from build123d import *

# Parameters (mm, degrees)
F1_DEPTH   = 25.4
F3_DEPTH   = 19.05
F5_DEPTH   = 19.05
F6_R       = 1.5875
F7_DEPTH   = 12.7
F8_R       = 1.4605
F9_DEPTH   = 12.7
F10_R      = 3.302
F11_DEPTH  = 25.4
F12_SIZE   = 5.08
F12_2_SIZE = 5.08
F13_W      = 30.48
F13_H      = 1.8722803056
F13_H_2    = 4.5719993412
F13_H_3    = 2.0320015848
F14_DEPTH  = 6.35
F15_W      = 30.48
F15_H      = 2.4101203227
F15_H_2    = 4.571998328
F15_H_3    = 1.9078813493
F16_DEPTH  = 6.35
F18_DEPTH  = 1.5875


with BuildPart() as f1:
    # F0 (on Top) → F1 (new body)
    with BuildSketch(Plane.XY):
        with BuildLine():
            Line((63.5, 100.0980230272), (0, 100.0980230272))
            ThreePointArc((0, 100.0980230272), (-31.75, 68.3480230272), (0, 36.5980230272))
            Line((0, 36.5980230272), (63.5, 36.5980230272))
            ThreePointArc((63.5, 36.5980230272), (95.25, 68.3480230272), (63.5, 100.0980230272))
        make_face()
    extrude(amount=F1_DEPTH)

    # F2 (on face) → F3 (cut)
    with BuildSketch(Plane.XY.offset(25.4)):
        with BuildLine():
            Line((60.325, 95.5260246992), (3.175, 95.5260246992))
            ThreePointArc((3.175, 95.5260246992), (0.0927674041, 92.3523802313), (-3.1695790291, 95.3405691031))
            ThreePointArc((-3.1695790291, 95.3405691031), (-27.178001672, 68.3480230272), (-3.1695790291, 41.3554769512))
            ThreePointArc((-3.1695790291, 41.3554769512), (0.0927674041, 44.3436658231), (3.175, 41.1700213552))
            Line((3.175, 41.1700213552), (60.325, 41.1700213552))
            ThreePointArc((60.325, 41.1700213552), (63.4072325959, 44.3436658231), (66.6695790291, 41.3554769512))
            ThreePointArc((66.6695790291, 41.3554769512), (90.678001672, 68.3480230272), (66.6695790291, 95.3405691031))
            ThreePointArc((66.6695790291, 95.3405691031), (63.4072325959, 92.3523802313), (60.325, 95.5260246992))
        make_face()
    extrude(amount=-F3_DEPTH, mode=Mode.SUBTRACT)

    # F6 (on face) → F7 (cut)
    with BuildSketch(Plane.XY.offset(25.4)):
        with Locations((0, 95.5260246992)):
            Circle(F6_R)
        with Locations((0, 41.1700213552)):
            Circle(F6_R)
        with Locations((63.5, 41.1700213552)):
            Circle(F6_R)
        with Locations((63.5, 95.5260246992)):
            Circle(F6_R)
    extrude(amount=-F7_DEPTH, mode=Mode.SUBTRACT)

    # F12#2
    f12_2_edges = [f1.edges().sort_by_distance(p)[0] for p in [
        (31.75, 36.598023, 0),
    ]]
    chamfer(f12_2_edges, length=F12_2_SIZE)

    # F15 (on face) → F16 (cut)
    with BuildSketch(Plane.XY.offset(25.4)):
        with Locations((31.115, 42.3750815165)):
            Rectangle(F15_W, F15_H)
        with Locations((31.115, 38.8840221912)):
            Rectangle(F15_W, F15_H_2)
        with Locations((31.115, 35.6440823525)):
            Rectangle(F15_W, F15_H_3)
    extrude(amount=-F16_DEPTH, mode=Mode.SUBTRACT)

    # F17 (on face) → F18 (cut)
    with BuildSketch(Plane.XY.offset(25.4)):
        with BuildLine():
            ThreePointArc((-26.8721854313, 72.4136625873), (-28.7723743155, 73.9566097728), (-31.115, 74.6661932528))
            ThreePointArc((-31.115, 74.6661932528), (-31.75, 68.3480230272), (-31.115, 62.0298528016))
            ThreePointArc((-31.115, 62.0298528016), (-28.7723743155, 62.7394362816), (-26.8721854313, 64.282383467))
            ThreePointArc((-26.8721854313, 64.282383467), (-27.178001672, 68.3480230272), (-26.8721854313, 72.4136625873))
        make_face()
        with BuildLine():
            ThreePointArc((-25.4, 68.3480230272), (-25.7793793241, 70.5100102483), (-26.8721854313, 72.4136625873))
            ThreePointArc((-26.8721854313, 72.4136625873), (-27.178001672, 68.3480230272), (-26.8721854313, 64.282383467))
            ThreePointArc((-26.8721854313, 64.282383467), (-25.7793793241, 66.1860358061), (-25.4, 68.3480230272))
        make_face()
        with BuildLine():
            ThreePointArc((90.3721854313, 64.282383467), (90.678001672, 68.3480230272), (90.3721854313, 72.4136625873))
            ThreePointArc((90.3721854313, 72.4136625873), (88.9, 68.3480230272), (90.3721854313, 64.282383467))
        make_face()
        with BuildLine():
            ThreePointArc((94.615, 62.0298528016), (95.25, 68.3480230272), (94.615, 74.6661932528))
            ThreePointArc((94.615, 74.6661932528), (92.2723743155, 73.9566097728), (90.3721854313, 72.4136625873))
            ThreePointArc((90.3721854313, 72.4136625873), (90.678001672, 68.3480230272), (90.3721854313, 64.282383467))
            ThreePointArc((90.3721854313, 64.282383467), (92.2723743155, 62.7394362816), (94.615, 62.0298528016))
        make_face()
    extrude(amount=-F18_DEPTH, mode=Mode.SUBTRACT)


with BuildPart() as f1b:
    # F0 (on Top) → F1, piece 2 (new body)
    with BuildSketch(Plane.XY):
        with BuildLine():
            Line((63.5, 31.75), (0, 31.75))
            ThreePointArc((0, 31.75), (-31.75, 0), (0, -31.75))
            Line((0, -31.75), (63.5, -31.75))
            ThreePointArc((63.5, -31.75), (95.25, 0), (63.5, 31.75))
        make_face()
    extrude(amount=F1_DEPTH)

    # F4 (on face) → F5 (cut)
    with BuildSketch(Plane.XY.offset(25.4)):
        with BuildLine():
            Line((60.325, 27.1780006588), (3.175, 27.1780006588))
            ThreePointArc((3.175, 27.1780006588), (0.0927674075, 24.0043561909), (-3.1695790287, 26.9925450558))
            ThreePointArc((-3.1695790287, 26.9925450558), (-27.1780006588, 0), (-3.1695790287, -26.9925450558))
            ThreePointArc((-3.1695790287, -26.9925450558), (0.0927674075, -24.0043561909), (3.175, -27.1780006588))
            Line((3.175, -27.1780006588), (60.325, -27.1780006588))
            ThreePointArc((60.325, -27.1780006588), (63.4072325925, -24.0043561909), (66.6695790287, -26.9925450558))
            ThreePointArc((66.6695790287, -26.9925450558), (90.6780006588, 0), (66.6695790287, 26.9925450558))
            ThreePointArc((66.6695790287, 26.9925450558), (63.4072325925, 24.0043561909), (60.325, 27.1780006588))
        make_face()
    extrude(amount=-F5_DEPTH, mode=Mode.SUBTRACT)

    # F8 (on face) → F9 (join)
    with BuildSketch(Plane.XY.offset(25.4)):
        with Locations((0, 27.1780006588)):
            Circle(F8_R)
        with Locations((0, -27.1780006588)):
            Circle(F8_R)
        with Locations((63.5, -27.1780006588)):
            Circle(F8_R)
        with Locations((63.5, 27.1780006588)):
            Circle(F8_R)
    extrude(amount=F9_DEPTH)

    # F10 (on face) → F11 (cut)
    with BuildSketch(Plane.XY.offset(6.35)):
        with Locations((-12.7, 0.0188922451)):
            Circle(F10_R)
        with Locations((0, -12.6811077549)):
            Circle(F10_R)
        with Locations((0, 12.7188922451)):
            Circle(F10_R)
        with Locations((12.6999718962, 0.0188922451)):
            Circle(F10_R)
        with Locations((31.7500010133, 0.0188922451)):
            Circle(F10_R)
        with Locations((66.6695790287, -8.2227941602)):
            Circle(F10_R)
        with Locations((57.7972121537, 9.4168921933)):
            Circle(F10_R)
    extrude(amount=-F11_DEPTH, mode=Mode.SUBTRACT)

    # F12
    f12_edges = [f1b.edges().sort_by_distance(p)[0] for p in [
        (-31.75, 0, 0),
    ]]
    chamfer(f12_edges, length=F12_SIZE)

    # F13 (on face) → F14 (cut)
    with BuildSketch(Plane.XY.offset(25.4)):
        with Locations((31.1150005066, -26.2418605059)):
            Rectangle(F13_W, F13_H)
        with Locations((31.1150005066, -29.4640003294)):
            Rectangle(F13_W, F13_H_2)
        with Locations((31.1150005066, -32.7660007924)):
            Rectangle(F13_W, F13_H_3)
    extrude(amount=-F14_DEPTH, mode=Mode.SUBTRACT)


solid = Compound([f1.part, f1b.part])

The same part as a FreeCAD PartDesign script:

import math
import FreeCAD as App
import Part
import Sketcher

V = App.Vector
Q = App.Units.Quantity


def edges_at(feature, points):
    """Names of the edges that pass closest to the given points."""
    edges = feature.Shape.Edges
    near = lambda p: min(range(len(edges)), key=lambda i: edges[i].distToShape(Part.Vertex(*p))[0])
    return sorted({f"Edge{near(p) + 1}" for p in points})

doc = App.newDocument("Part")
body = doc.addObject("PartDesign::Body", "Body")

# Sketch on XY plane
sketch1 = body.newObject("Sketcher::SketchObject", "Sketch")
sketch1.AttachmentSupport = (doc.getObject("XY_Plane"), [""])
sketch1.MapMode = "FlatFace"
sketch1.addGeometry([
    Part.LineSegment(V(63.5, 100.098023, 0), V(0, 100.098023, 0)),
    Part.ArcOfCircle(Part.Circle(V(0, 68.348023, 0), V(0, 0, 1), 31.75), math.radians(90), math.radians(270)),
    Part.LineSegment(V(0, 36.598023, 0), V(63.5, 36.598023, 0)),
    Part.ArcOfCircle(Part.Circle(V(63.5, 68.348023, 0), V(0, 0, 1), 31.75), math.radians(-90), math.radians(90)),
], False)
sketch1.addConstraint([
    Sketcher.Constraint("Tangent", 0, 2, 1, 1),
    Sketcher.Constraint("Tangent", 1, 2, 2, 1),
    Sketcher.Constraint("Tangent", 2, 2, 3, 1),
    Sketcher.Constraint("Tangent", 3, 2, 0, 1),
    Sketcher.Constraint("Horizontal", 0),
    Sketcher.Constraint("Horizontal", 2),
    Sketcher.Constraint("PointOnObject", 1, 3, -2),
    Sketcher.Constraint("Radius", 1, Q("1.25 in")),
    Sketcher.Constraint("DistanceX", 0, 2, 0, 1, Q("2.5 in")),
    Sketcher.Constraint("DistanceY", -1, 1, 1, 3, Q("68.348023 mm")),
])
pad1 = body.newObject("PartDesign::Pad", "Pad")
pad1.Profile = sketch1
pad1.Length = Q("1 in")

# Sketch on XY plane
sketch2 = body.newObject("Sketcher::SketchObject", "Sketch001")
sketch2.AttachmentSupport = (doc.getObject("XY_Plane"), [""])
sketch2.MapMode = "FlatFace"
sketch2.AttachmentOffset = App.Placement(V(0, 0, 1 * 25.4), App.Rotation())
sketch2.addGeometry([
    Part.LineSegment(V(60.325, 95.526025, 0), V(3.175, 95.526025, 0)),  # 0
    Part.ArcOfCircle(Part.Circle(V(0, 95.526025, 0), V(0, 0, 1), 3.175), math.radians(-176.651378), math.radians(0)),  # 1
    Part.ArcOfCircle(Part.Circle(V(0, 68.348023, 0), V(0, 0, 1), 27.178002), math.radians(96.697244), math.radians(263.302756)),  # 2
    Part.ArcOfCircle(Part.Circle(V(0, 41.170021, 0), V(0, 0, 1), 3.175), math.radians(0), math.radians(176.651378)),  # 3
    Part.LineSegment(V(3.175, 41.170021, 0), V(60.325, 41.170021, 0)),  # 4
    Part.ArcOfCircle(Part.Circle(V(63.5, 41.170021, 0), V(0, 0, 1), 3.175), math.radians(3.348622), math.radians(180)),  # 5
    Part.ArcOfCircle(Part.Circle(V(63.5, 68.348023, 0), V(0, 0, 1), 27.178002), math.radians(-83.302756), math.radians(83.302756)),  # 6
    Part.ArcOfCircle(Part.Circle(V(63.5, 95.526025, 0), V(0, 0, 1), 3.175), math.radians(180), math.radians(356.651378)),  # 7
], False)
sketch2.addConstraint([
    Sketcher.Constraint("Coincident", 0, 2, 1, 2),
    Sketcher.Constraint("Coincident", 1, 1, 2, 1),
    Sketcher.Constraint("Coincident", 2, 2, 3, 2),
    Sketcher.Constraint("Coincident", 3, 1, 4, 1),
    Sketcher.Constraint("Coincident", 4, 2, 5, 2),
    Sketcher.Constraint("Coincident", 5, 1, 6, 1),
    Sketcher.Constraint("Coincident", 6, 2, 7, 2),
    Sketcher.Constraint("Coincident", 7, 1, 0, 1),
    Sketcher.Constraint("Horizontal", 0),
    Sketcher.Constraint("Horizontal", 4),
    Sketcher.Constraint("Equal", 1, 3),
    Sketcher.Constraint("Equal", 3, 5),
    Sketcher.Constraint("Equal", 2, 6),
    Sketcher.Constraint("Equal", 5, 7),
    Sketcher.Constraint("PointOnObject", 1, 3, -2),
    Sketcher.Constraint("PointOnObject", 2, 3, -2),
    Sketcher.Constraint("PointOnObject", 3, 3, -2),
    Sketcher.Constraint("Horizontal", 3, 3, 5, 3),
    Sketcher.Constraint("Horizontal", 2, 3, 6, 3),
    Sketcher.Constraint("Horizontal", 1, 3, 7, 3),
    Sketcher.Constraint("Horizontal", 7, 3, 0, 2),
    Sketcher.Constraint("Horizontal", 5, 3, 3, 1),
    Sketcher.Constraint("Horizontal", 2, 2, 5, 1),
    Sketcher.Constraint("Horizontal", 1, 1, 6, 2),
    Sketcher.Constraint("Vertical", 1, 1, 2, 2),
    Sketcher.Constraint("Radius", 2, Q("1.0700001 in")),
    Sketcher.Constraint("Radius", 1, Q("0.125 in")),
    Sketcher.Constraint("DistanceX", 0, 2, 0, 1, Q("2.25 in")),
    Sketcher.Constraint("DistanceY", 2, 3, 1, 3, Q("1.0700001 in")),
    Sketcher.Constraint("DistanceY", -1, 1, 3, 3, Q("41.170021 mm")),
])
pocket1 = body.newObject("PartDesign::Pocket", "Pocket")
pocket1.Profile = sketch2
pocket1.Length = Q("0.75 in")

# Sketch on XY plane
sketch3 = body.newObject("Sketcher::SketchObject", "Sketch002")
sketch3.AttachmentSupport = (doc.getObject("XY_Plane"), [""])
sketch3.MapMode = "FlatFace"
sketch3.AttachmentOffset = App.Placement(V(0, 0, 1 * 25.4), App.Rotation())
sketch3.addGeometry([
    Part.Circle(V(0, 95.526025, 0), V(0, 0, 1), 1.5875),
    Part.Circle(V(0, 41.170021, 0), V(0, 0, 1), 1.5875),
    Part.Circle(V(63.5, 41.170021, 0), V(0, 0, 1), 1.5875),
    Part.Circle(V(63.5, 95.526025, 0), V(0, 0, 1), 1.5875),
], False)
sketch3.addConstraint([
    Sketcher.Constraint("Equal", 0, 1),
    Sketcher.Constraint("Equal", 1, 2),
    Sketcher.Constraint("Equal", 2, 3),
    Sketcher.Constraint("PointOnObject", 0, 3, -2),
    Sketcher.Constraint("PointOnObject", 1, 3, -2),
    Sketcher.Constraint("Horizontal", 1, 3, 2, 3),
    Sketcher.Constraint("Horizontal", 0, 3, 3, 3),
    Sketcher.Constraint("Vertical", 2, 3, 3, 3),
    Sketcher.Constraint("Diameter", 0, Q("0.125 in")),
    Sketcher.Constraint("DistanceX", -1, 1, 2, 3, Q("2.5 in")),
    Sketcher.Constraint("DistanceY", 1, 3, 0, 3, Q("2.1400001 in")),
    Sketcher.Constraint("DistanceY", -1, 1, 1, 3, Q("41.170021 mm")),
])
pocket2 = body.newObject("PartDesign::Pocket", "Pocket001")
pocket2.Profile = sketch3
pocket2.Length = Q("0.5 in")
doc.recompute()

chamfer = body.newObject("PartDesign::Chamfer", "Chamfer")
chamfer.Base = (pocket2, edges_at(pocket2, [(31.75, 36.598, 0)]))
chamfer.Size = Q("0.2 in")

# Sketch on XY plane
sketch4 = body.newObject("Sketcher::SketchObject", "Sketch003")
sketch4.AttachmentSupport = (doc.getObject("XY_Plane"), [""])
sketch4.MapMode = "FlatFace"
sketch4.AttachmentOffset = App.Placement(V(0, 0, 1 * 25.4), App.Rotation())
sketch4.addGeometry([
    Part.LineSegment(V(15.875, 43.580142, 0), V(15.875, 34.690142, 0)),
    Part.LineSegment(V(15.875, 34.690142, 0), V(46.355, 34.690142, 0)),
    Part.LineSegment(V(46.355, 34.690142, 0), V(46.355, 43.580142, 0)),
    Part.LineSegment(V(46.355, 43.580142, 0), V(15.875, 43.580142, 0)),
], False)
sketch4.addConstraint([
    Sketcher.Constraint("Coincident", 0, 2, 1, 1),
    Sketcher.Constraint("Coincident", 1, 2, 2, 1),
    Sketcher.Constraint("Coincident", 2, 2, 3, 1),
    Sketcher.Constraint("Coincident", 3, 2, 0, 1),
    Sketcher.Constraint("Vertical", 0),
    Sketcher.Constraint("Horizontal", 1),
    Sketcher.Constraint("Vertical", 2),
    Sketcher.Constraint("Horizontal", 3),
    Sketcher.Constraint("DistanceX", 1, 1, 1, 2, Q("1.2 in")),
    Sketcher.Constraint("DistanceY", 0, 2, 0, 1, Q("0.35 in")),
    Sketcher.Constraint("DistanceX", -1, 1, 0, 2, Q("0.625 in")),
    Sketcher.Constraint("DistanceY", -1, 1, 0, 2, Q("34.690142 mm")),
])
pocket3 = body.newObject("PartDesign::Pocket", "Pocket002")
pocket3.Profile = sketch4
pocket3.Length = Q("0.25 in")

# Sketch on XY plane
sketch5 = body.newObject("Sketcher::SketchObject", "Sketch004")
sketch5.AttachmentSupport = (doc.getObject("XY_Plane"), [""])
sketch5.MapMode = "FlatFace"
sketch5.AttachmentOffset = App.Placement(V(0, 0, 1 * 25.4), App.Rotation())
sketch5.addGeometry([
    Part.ArcOfCircle(Part.Circle(V(-31.75, 68.348023, 0), V(0, 0, 1), 6.35), math.radians(39.811075), math.radians(84.26083)),  # 0
    Part.ArcOfCircle(Part.Circle(V(0, 68.348023, 0), V(0, 0, 1), 31.75), math.radians(168.521659), math.radians(191.478341)),  # 1
    Part.ArcOfCircle(Part.Circle(V(-31.75, 68.348023, 0), V(0, 0, 1), 6.35), math.radians(-84.26083), math.radians(-39.811075)),  # 2
    Part.ArcOfCircle(Part.Circle(V(-31.75, 68.348023, 0), V(0, 0, 1), 6.35), math.radians(-39.811075), math.radians(0)),  # 3
    Part.ArcOfCircle(Part.Circle(V(-31.75, 68.348023, 0), V(0, 0, 1), 6.35), math.radians(0), math.radians(39.811075)),  # 4
    Part.ArcOfCircle(Part.Circle(V(95.25, 68.348023, 0), V(0, 0, 1), 6.35), math.radians(140.188925), math.radians(219.811075)),  # 5
    Part.ArcOfCircle(Part.Circle(V(95.25, 68.348023, 0), V(0, 0, 1), 6.35), math.radians(-140.188925), math.radians(-95.73917)),  # 6
    Part.ArcOfCircle(Part.Circle(V(63.5, 68.348023, 0), V(0, 0, 1), 31.75), math.radians(-11.478341), math.radians(11.478341)),  # 7
    Part.ArcOfCircle(Part.Circle(V(95.25, 68.348023, 0), V(0, 0, 1), 6.35), math.radians(95.73917), math.radians(140.188925)),  # 8
], False)
sketch5.addConstraint([
    Sketcher.Constraint("Coincident", 0, 2, 1, 1),
    Sketcher.Constraint("Coincident", 1, 2, 2, 1),
    Sketcher.Constraint("Tangent", 2, 2, 3, 1),
    Sketcher.Constraint("Tangent", 3, 2, 4, 1),
    Sketcher.Constraint("Tangent", 4, 2, 0, 1),
    Sketcher.Constraint("Tangent", 5, 2, 6, 1),
    Sketcher.Constraint("Coincident", 6, 2, 7, 1),
    Sketcher.Constraint("Coincident", 7, 2, 8, 1),
    Sketcher.Constraint("Tangent", 8, 2, 5, 1),
    Sketcher.Constraint("Coincident", 2, 3, 0, 3),
    Sketcher.Constraint("Equal", 0, 2),
    Sketcher.Constraint("Equal", 4, 5),
    Sketcher.Constraint("Equal", 5, 6),
    Sketcher.Constraint("Equal", 1, 7),
    Sketcher.Constraint("Equal", 6, 8),
    Sketcher.Constraint("PointOnObject", 1, 3, -2),
    Sketcher.Constraint("Horizontal", 0, 3, 1, 3),
    Sketcher.Constraint("Horizontal", 4, 3, 5, 3),
    Sketcher.Constraint("Horizontal", 6, 3, 7, 3),
    Sketcher.Constraint("Horizontal", 8, 3, 3, 2),
    Sketcher.Constraint("Horizontal", 2, 2, 5, 2),
    Sketcher.Constraint("Horizontal", 1, 2, 6, 2),
    Sketcher.Constraint("Horizontal", 4, 2, 8, 2),
    Sketcher.Constraint("Vertical", 2, 2, 4, 2),
    Sketcher.Constraint("Radius", 0, Q("0.25 in")),
    Sketcher.Constraint("Radius", 1, Q("1.25 in")),
    Sketcher.Constraint("DistanceX", 3, 2, -1, 1, Q("1 in")),
    Sketcher.Constraint("DistanceX", 0, 3, 5, 3, Q("5 in")),
    Sketcher.Constraint("DistanceY", 1, 2, 2, 2, Q("2.252531 mm")),
    Sketcher.Constraint("DistanceY", -1, 1, 0, 3, Q("68.348023 mm")),
])
pocket4 = body.newObject("PartDesign::Pocket", "Pocket003")
pocket4.Profile = sketch5
pocket4.Length = Q("0.0625 in")
body2 = doc.addObject("PartDesign::Body", "Body001")

# Sketch on XY plane
sketch6 = body2.newObject("Sketcher::SketchObject", "Sketch005")
sketch6.AttachmentSupport = (doc.getObject("XY_Plane001"), [""])
sketch6.MapMode = "FlatFace"
sketch6.addGeometry([
    Part.LineSegment(V(63.5, 31.75, 0), V(0, 31.75, 0)),
    Part.ArcOfCircle(Part.Circle(V(0, 0, 0), V(0, 0, 1), 31.75), math.radians(90), math.radians(270)),
    Part.LineSegment(V(0, -31.75, 0), V(63.5, -31.75, 0)),
    Part.ArcOfCircle(Part.Circle(V(63.5, 0, 0), V(0, 0, 1), 31.75), math.radians(-90), math.radians(90)),
], False)
sketch6.addConstraint([
    Sketcher.Constraint("Tangent", 0, 2, 1, 1),
    Sketcher.Constraint("Tangent", 1, 2, 2, 1),
    Sketcher.Constraint("Tangent", 2, 2, 3, 1),
    Sketcher.Constraint("Tangent", 3, 2, 0, 1),
    Sketcher.Constraint("Horizontal", 0),
    Sketcher.Constraint("Horizontal", 2),
    Sketcher.Constraint("Coincident", 1, 3, -1, 1),
    Sketcher.Constraint("Radius", 1, Q("1.25 in")),
    Sketcher.Constraint("DistanceX", 0, 2, 0, 1, Q("2.5 in")),
])
pad2 = body2.newObject("PartDesign::Pad", "Pad001")
pad2.Profile = sketch6
pad2.Length = Q("1 in")

# Sketch on XY plane
sketch7 = body2.newObject("Sketcher::SketchObject", "Sketch006")
sketch7.AttachmentSupport = (doc.getObject("XY_Plane001"), [""])
sketch7.MapMode = "FlatFace"
sketch7.AttachmentOffset = App.Placement(V(0, 0, 1 * 25.4), App.Rotation())
sketch7.addGeometry([
    Part.LineSegment(V(60.325, 27.178001, 0), V(3.175, 27.178001, 0)),  # 0
    Part.ArcOfCircle(Part.Circle(V(0, 27.178001, 0), V(0, 0, 1), 3.175), math.radians(-176.651378), math.radians(0)),  # 1
    Part.ArcOfCircle(Part.Circle(V(0, 0, 0), V(0, 0, 1), 27.178001), math.radians(96.697244), math.radians(263.302756)),  # 2
    Part.ArcOfCircle(Part.Circle(V(0, -27.178001, 0), V(0, 0, 1), 3.175), math.radians(0), math.radians(176.651378)),  # 3
    Part.LineSegment(V(3.175, -27.178001, 0), V(60.325, -27.178001, 0)),  # 4
    Part.ArcOfCircle(Part.Circle(V(63.5, -27.178001, 0), V(0, 0, 1), 3.175), math.radians(3.348622), math.radians(180)),  # 5
    Part.ArcOfCircle(Part.Circle(V(63.5, 0, 0), V(0, 0, 1), 27.178001), math.radians(-83.302756), math.radians(83.302756)),  # 6
    Part.ArcOfCircle(Part.Circle(V(63.5, 27.178001, 0), V(0, 0, 1), 3.175), math.radians(180), math.radians(356.651378)),  # 7
], False)
sketch7.addConstraint([
    Sketcher.Constraint("Coincident", 0, 2, 1, 2),
    Sketcher.Constraint("Coincident", 1, 1, 2, 1),
    Sketcher.Constraint("Coincident", 2, 2, 3, 2),
    Sketcher.Constraint("Coincident", 3, 1, 4, 1),
    Sketcher.Constraint("Coincident", 4, 2, 5, 2),
    Sketcher.Constraint("Coincident", 5, 1, 6, 1),
    Sketcher.Constraint("Coincident", 6, 2, 7, 2),
    Sketcher.Constraint("Coincident", 7, 1, 0, 1),
    Sketcher.Constraint("Horizontal", 0),
    Sketcher.Constraint("Horizontal", 4),
    Sketcher.Constraint("Coincident", 2, 3, -1, 1),
    Sketcher.Constraint("Equal", 1, 3),
    Sketcher.Constraint("Equal", 3, 5),
    Sketcher.Constraint("Equal", 2, 6),
    Sketcher.Constraint("Equal", 5, 7),
    Sketcher.Constraint("Symmetric", 1, 3, 3, 3, -1, 1),
    Sketcher.Constraint("Symmetric", 5, 3, 7, 3, -1),
    Sketcher.Constraint("Symmetric", 0, 2, 3, 1, -1),
    Sketcher.Constraint("PointOnObject", 6, 3, -1),
    Sketcher.Constraint("Horizontal", 3, 3, 5, 3),
    Sketcher.Constraint("Horizontal", 7, 3, 0, 2),
    Sketcher.Constraint("Horizontal", 2, 2, 5, 1),
    Sketcher.Constraint("Radius", 2, Q("1.07 in")),
    Sketcher.Constraint("Radius", 1, Q("0.125 in")),
    Sketcher.Constraint("DistanceX", 0, 2, 0, 1, Q("2.25 in")),
    Sketcher.Constraint("DistanceY", -1, 1, 1, 3, Q("1.07 in")),
])
pocket5 = body2.newObject("PartDesign::Pocket", "Pocket004")
pocket5.Profile = sketch7
pocket5.Length = Q("0.75 in")

# Sketch on XY plane
sketch8 = body2.newObject("Sketcher::SketchObject", "Sketch007")
sketch8.AttachmentSupport = (doc.getObject("XY_Plane001"), [""])
sketch8.MapMode = "FlatFace"
sketch8.AttachmentOffset = App.Placement(V(0, 0, 1 * 25.4), App.Rotation())
sketch8.addGeometry([
    Part.Circle(V(0, 27.178001, 0), V(0, 0, 1), 1.4605),
    Part.Circle(V(0, -27.178001, 0), V(0, 0, 1), 1.4605),
    Part.Circle(V(63.5, -27.178001, 0), V(0, 0, 1), 1.4605),
    Part.Circle(V(63.5, 27.178001, 0), V(0, 0, 1), 1.4605),
], False)
sketch8.addConstraint([
    Sketcher.Constraint("Equal", 0, 1),
    Sketcher.Constraint("Equal", 1, 2),
    Sketcher.Constraint("Equal", 2, 3),
    Sketcher.Constraint("Symmetric", 0, 3, 1, 3, -1, 1),
    Sketcher.Constraint("Symmetric", 2, 3, 3, 3, -1),
    Sketcher.Constraint("PointOnObject", 0, 3, -2),
    Sketcher.Constraint("Horizontal", 1, 3, 2, 3),
    Sketcher.Constraint("Diameter", 0, Q("0.115 in")),
    Sketcher.Constraint("DistanceX", -1, 1, 2, 3, Q("2.5 in")),
    Sketcher.Constraint("DistanceY", -1, 1, 0, 3, Q("1.07 in")),
])
pad3 = body2.newObject("PartDesign::Pad", "Pad002")
pad3.Profile = sketch8
pad3.Length = Q("0.5 in")

# Sketch on XY plane
sketch9 = body2.newObject("Sketcher::SketchObject", "Sketch008")
sketch9.AttachmentSupport = (doc.getObject("XY_Plane001"), [""])
sketch9.MapMode = "FlatFace"
sketch9.AttachmentOffset = App.Placement(V(0, 0, 0.25 * 25.4), App.Rotation())
sketch9.addGeometry([
    Part.Circle(V(-12.7, 0.018892, 0), V(0, 0, 1), 3.302),  # 0
    Part.Circle(V(0, -12.681108, 0), V(0, 0, 1), 3.302),  # 1
    Part.Circle(V(0, 12.718892, 0), V(0, 0, 1), 3.302),  # 2
    Part.Circle(V(12.699972, 0.018892, 0), V(0, 0, 1), 3.302),  # 3
    Part.Circle(V(31.750001, 0.018892, 0), V(0, 0, 1), 3.302),  # 4
    Part.Circle(V(66.669579, -8.222794, 0), V(0, 0, 1), 3.302),  # 5
    Part.Circle(V(57.797212, 9.416892, 0), V(0, 0, 1), 3.302),  # 6
], False)
sketch9.addConstraint([
    Sketcher.Constraint("Equal", 0, 1),
    Sketcher.Constraint("Equal", 1, 2),
    Sketcher.Constraint("Equal", 2, 3),
    Sketcher.Constraint("Equal", 3, 4),
    Sketcher.Constraint("Equal", 4, 5),
    Sketcher.Constraint("Equal", 5, 6),
    Sketcher.Constraint("PointOnObject", 1, 3, -2),
    Sketcher.Constraint("PointOnObject", 2, 3, -2),
    Sketcher.Constraint("Horizontal", 0, 3, 3, 3),
    Sketcher.Constraint("Horizontal", 3, 3, 4, 3),
    Sketcher.Constraint("Diameter", 0, Q("0.26 in")),
    Sketcher.Constraint("DistanceY", 1, 3, 2, 3, Q("1 in")),
    Sketcher.Constraint("DistanceX", 0, 3, -1, 1, Q("0.5 in")),
    Sketcher.Constraint("DistanceY", 1, 3, 0, 3, Q("0.5 in")),
    Sketcher.Constraint("DistanceX", -1, 1, 4, 3, Q("1.25 in")),
    Sketcher.Constraint("DistanceY", 4, 3, 6, 3, Q("0.37 in")),
    Sketcher.Constraint("DistanceX", -1, 1, 3, 3, Q("12.699972 mm")),
    Sketcher.Constraint("DistanceX", -1, 1, 5, 3, Q("66.669579 mm")),
    Sketcher.Constraint("DistanceX", 4, 3, 6, 3, Q("26.047211 mm")),
    Sketcher.Constraint("DistanceY", -1, 1, 0, 3, Q("0.018892 mm")),
    Sketcher.Constraint("DistanceY", 5, 3, -1, 1, Q("8.222794 mm")),
])
pocket6 = body2.newObject("PartDesign::Pocket", "Pocket005")
pocket6.Profile = sketch9
pocket6.Length = Q("1 in")
doc.recompute()

chamfer2 = body2.newObject("PartDesign::Chamfer", "Chamfer001")
chamfer2.Base = (pocket6, edges_at(pocket6, [(-31.75, 0, 0)]))
chamfer2.Size = Q("0.2 in")

# Sketch on XY plane
sketch10 = body2.newObject("Sketcher::SketchObject", "Sketch009")
sketch10.AttachmentSupport = (doc.getObject("XY_Plane001"), [""])
sketch10.MapMode = "FlatFace"
sketch10.AttachmentOffset = App.Placement(V(0, 0, 1 * 25.4), App.Rotation())
sketch10.addGeometry([
    Part.LineSegment(V(15.875001, -25.30572, 0), V(15.875001, -33.782002, 0)),
    Part.LineSegment(V(15.875001, -33.782002, 0), V(46.355001, -33.782002, 0)),
    Part.LineSegment(V(46.355001, -33.782002, 0), V(46.355001, -25.30572, 0)),
    Part.LineSegment(V(46.355001, -25.30572, 0), V(15.875001, -25.30572, 0)),
], False)
sketch10.addConstraint([
    Sketcher.Constraint("Coincident", 0, 2, 1, 1),
    Sketcher.Constraint("Coincident", 1, 2, 2, 1),
    Sketcher.Constraint("Coincident", 2, 2, 3, 1),
    Sketcher.Constraint("Coincident", 3, 2, 0, 1),
    Sketcher.Constraint("Vertical", 0),
    Sketcher.Constraint("Horizontal", 1),
    Sketcher.Constraint("Vertical", 2),
    Sketcher.Constraint("Horizontal", 3),
    Sketcher.Constraint("DistanceX", 1, 1, 1, 2, Q("1.2 in")),
    Sketcher.Constraint("DistanceY", 0, 2, -1, 1, Q("1.3300001 in")),
    Sketcher.Constraint("DistanceX", -1, 1, 0, 2, Q("0.625 in")),
    Sketcher.Constraint("DistanceY", 0, 2, 0, 1, Q("8.476281 mm")),
])
pocket7 = body2.newObject("PartDesign::Pocket", "Pocket006")
pocket7.Profile = sketch10
pocket7.Length = Q("0.25 in")

doc.recompute()
